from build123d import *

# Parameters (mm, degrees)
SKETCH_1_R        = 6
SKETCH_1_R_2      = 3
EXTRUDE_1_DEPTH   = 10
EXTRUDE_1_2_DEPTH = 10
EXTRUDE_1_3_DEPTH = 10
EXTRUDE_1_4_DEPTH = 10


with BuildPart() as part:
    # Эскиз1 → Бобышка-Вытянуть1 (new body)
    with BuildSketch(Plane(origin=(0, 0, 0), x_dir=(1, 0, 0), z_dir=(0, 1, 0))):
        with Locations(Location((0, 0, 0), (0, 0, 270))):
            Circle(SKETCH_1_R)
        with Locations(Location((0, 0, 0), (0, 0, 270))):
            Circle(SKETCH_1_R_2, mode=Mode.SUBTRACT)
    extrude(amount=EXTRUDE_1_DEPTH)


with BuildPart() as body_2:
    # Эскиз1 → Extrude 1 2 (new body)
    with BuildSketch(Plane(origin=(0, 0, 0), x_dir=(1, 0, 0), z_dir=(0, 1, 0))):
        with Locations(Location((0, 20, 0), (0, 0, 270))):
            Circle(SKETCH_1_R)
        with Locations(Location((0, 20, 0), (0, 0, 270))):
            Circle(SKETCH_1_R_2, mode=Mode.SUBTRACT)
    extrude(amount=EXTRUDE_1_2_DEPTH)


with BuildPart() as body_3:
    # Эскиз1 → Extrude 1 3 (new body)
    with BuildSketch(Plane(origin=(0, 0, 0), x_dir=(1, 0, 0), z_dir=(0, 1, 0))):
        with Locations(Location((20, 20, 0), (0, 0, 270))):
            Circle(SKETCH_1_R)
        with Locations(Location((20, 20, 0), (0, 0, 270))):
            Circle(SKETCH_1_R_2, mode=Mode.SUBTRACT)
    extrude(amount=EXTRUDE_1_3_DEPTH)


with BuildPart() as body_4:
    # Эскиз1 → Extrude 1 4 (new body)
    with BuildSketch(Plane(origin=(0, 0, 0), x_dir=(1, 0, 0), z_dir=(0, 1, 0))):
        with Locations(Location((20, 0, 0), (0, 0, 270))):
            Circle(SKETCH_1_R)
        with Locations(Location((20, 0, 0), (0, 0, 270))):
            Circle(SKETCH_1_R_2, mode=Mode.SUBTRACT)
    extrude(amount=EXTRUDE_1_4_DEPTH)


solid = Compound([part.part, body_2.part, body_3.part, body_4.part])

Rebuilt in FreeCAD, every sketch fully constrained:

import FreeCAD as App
import Part
import Sketcher

V = App.Vector
Q = App.Units.Quantity

doc = App.newDocument("Part")
params = doc.addObject("Spreadsheet::Sheet", "Params")
for row, (alias, value) in enumerate([
    ("sketch1_diameter", "12 mm"),
    ("sketch1_diameter2", "6 mm"),
    ("pad1_length", "10 mm"),
    ("sketch2_diameter", "12 mm"),
    ("sketch2_diameter2", "6 mm"),
    ("pad2_length", "10 mm"),
    ("sketch3_diameter", "12 mm"),
    ("sketch3_diameter2", "6 mm"),
    ("pad3_length", "10 mm"),
    ("sketch4_diameter", "12 mm"),
    ("sketch4_diameter2", "6 mm"),
    ("pad4_length", "10 mm"),
], start=1):
    params.set(f"A{row}", alias)
    params.set(f"B{row}", "=" + value)
    params.setAlias(f"B{row}", alias)

body = doc.addObject("PartDesign::Body", "Body")

sketch1 = doc.addObject("Sketcher::SketchObject", "Sketch")
body.addObject(sketch1)
sketch1.AttachmentSupport = (doc.XZ_Plane, [""])
sketch1.MapMode = "FlatFace"
sketch1.addGeometry([
    Part.Circle(V(0, 0, 0), V(0, 0, 1), 6),
    Part.Circle(V(0, 0, 0), V(0, 0, 1), 3),
], False)
sketch1.addConstraint([
    Sketcher.Constraint("Coincident", 0, 3, -1, 1),
    Sketcher.Constraint("Coincident", 1, 3, -1, 1),
    Sketcher.Constraint("Diameter", 0, Q("12 mm")),
    Sketcher.Constraint("Diameter", 1, Q("6 mm")),
])
sketch1.setExpression("Constraints[2]", "Params.sketch1_diameter")
sketch1.setExpression("Constraints[3]", "Params.sketch1_diameter2")
pad1 = doc.addObject("PartDesign::Pad", "Pad")
body.addObject(pad1)
pad1.Profile = sketch1
pad1.setExpression("Length", "Params.pad1_length")
pad1.Reversed = True
body2 = doc.addObject("PartDesign::Body", "Body001")

sketch2 = doc.addObject("Sketcher::SketchObject", "Sketch001")
body2.addObject(sketch2)
sketch2.AttachmentSupport = (doc.getObject("XZ_Plane001"), [""])
sketch2.MapMode = "FlatFace"
sketch2.addGeometry([
    Part.Circle(V(0, -20, 0), V(0, 0, 1), 6),
    Part.Circle(V(0, -20, 0), V(0, 0, 1), 3),
], False)
sketch2.addConstraint([
    Sketcher.Constraint("Coincident", 1, 3, 0, 3),
    Sketcher.Constraint("PointOnObject", 0, 3, -2),
    Sketcher.Constraint("Diameter", 0, Q("12 mm")),
    Sketcher.Constraint("Diameter", 1, Q("6 mm")),
    Sketcher.Constraint("DistanceY", 0, 3, -1, 1, Q("20 mm")),
])
sketch2.setExpression("Constraints[2]", "Params.sketch2_diameter")
sketch2.setExpression("Constraints[3]", "Params.sketch2_diameter2")
pad2 = doc.addObject("PartDesign::Pad", "Pad001")
body2.addObject(pad2)
pad2.Profile = sketch2
pad2.setExpression("Length", "Params.pad2_length")
pad2.Reversed = True
body3 = doc.addObject("PartDesign::Body", "Body002")

sketch3 = doc.addObject("Sketcher::SketchObject", "Sketch002")
body3.addObject(sketch3)
sketch3.AttachmentSupport = (doc.getObject("XZ_Plane002"), [""])
sketch3.MapMode = "FlatFace"
sketch3.addGeometry([
    Part.Circle(V(20, -20, 0), V(0, 0, 1), 6),
    Part.Circle(V(20, -20, 0), V(0, 0, 1), 3),
], False)
sketch3.addConstraint([
    Sketcher.Constraint("Coincident", 1, 3, 0, 3),
    Sketcher.Constraint("Diameter", 0, Q("12 mm")),
    Sketcher.Constraint("Diameter", 1, Q("6 mm")),
    Sketcher.Constraint("DistanceX", -1, 1, 0, 3, Q("20 mm")),
    Sketcher.Constraint("DistanceY", 0, 3, -1, 1, Q("20 mm")),
])
sketch3.setExpression("Constraints[1]", "Params.sketch3_diameter")
sketch3.setExpression("Constraints[2]", "Params.sketch3_diameter2")
pad3 = doc.addObject("PartDesign::Pad", "Pad002")
body3.addObject(pad3)
pad3.Profile = sketch3
pad3.setExpression("Length", "Params.pad3_length")
pad3.Reversed = True
body4 = doc.addObject("PartDesign::Body", "Body003")

sketch4 = doc.addObject("Sketcher::SketchObject", "Sketch003")
body4.addObject(sketch4)
sketch4.AttachmentSupport = (doc.getObject("XZ_Plane003"), [""])
sketch4.MapMode = "FlatFace"
sketch4.addGeometry([
    Part.Circle(V(20, 0, 0), V(0, 0, 1), 6),
    Part.Circle(V(20, 0, 0), V(0, 0, 1), 3),
], False)
sketch4.addConstraint([
    Sketcher.Constraint("Coincident", 1, 3, 0, 3),
    Sketcher.Constraint("PointOnObject", 0, 3, -1),
    Sketcher.Constraint("Diameter", 0, Q("12 mm")),
    Sketcher.Constraint("Diameter", 1, Q("6 mm")),
    Sketcher.Constraint("DistanceX", -1, 1, 0, 3, Q("20 mm")),
])
sketch4.setExpression("Constraints[2]", "Params.sketch4_diameter")
sketch4.setExpression("Constraints[3]", "Params.sketch4_diameter2")
pad4 = doc.addObject("PartDesign::Pad", "Pad003")
body4.addObject(pad4)
pad4.Profile = sketch4
pad4.setExpression("Length", "Params.pad4_length")
pad4.Reversed = True

doc.recompute()
